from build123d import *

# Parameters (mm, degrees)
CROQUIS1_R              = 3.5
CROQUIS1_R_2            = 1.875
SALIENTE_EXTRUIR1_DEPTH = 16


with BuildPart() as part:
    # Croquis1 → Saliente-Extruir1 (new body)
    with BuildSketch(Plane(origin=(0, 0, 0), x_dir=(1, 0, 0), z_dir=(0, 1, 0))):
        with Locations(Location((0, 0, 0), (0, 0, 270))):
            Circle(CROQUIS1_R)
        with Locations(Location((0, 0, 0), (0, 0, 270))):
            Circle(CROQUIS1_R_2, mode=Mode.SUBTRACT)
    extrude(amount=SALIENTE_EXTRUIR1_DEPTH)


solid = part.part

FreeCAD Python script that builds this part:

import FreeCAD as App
import Part
import Sketcher

doc = App.newDocument("Part")
params = doc.addObject("Spreadsheet::Sheet", "Params")
for row, (alias, value) in enumerate([
    ("sketch1_diameter", "7 mm"),
    ("sketch1_diameter2", "3.75 mm"),
    ("pad1_length", "16 mm"),
], start=1):
    params.set(f"A{row}", alias)
    params.set(f"B{row}", "=" + value)
    params.setAlias(f"B{row}", alias)

body = doc.addObject("PartDesign::Body", "Body")

# Sketch on XZ plane
sketch1 = body.newObject("Sketcher::SketchObject", "Sketch")
sketch1.AttachmentSupport = (doc.getObject("XZ_Plane"), [""])
sketch1.MapMode = "FlatFace"
sketch1.addGeometry([
    Part.Circle(App.Vector(0, 0, 0), App.Vector(0, 0, 1), 3.5),
    Part.Circle(App.Vector(0, 0, 0), App.Vector(0, 0, 1), 1.9),
], False)
sketch1.addConstraint([
    Sketcher.Constraint("Coincident", 0, 3, -1, 1),
    Sketcher.Constraint("Coincident", 1, 3, -1, 1),
    Sketcher.Constraint("Diameter", 0, 7.0),
    Sketcher.Constraint("Diameter", 1, 3.75),
])
sketch1.setExpression("Constraints[2]", "Params.sketch1_diameter")
sketch1.setExpression("Constraints[3]", "Params.sketch1_diameter2")
pad1 = body.newObject("PartDesign::Pad", "Pad")
pad1.Profile = sketch1
pad1.setExpression("Length", "Params.pad1_length")
pad1.Reversed = True

doc.recompute()
